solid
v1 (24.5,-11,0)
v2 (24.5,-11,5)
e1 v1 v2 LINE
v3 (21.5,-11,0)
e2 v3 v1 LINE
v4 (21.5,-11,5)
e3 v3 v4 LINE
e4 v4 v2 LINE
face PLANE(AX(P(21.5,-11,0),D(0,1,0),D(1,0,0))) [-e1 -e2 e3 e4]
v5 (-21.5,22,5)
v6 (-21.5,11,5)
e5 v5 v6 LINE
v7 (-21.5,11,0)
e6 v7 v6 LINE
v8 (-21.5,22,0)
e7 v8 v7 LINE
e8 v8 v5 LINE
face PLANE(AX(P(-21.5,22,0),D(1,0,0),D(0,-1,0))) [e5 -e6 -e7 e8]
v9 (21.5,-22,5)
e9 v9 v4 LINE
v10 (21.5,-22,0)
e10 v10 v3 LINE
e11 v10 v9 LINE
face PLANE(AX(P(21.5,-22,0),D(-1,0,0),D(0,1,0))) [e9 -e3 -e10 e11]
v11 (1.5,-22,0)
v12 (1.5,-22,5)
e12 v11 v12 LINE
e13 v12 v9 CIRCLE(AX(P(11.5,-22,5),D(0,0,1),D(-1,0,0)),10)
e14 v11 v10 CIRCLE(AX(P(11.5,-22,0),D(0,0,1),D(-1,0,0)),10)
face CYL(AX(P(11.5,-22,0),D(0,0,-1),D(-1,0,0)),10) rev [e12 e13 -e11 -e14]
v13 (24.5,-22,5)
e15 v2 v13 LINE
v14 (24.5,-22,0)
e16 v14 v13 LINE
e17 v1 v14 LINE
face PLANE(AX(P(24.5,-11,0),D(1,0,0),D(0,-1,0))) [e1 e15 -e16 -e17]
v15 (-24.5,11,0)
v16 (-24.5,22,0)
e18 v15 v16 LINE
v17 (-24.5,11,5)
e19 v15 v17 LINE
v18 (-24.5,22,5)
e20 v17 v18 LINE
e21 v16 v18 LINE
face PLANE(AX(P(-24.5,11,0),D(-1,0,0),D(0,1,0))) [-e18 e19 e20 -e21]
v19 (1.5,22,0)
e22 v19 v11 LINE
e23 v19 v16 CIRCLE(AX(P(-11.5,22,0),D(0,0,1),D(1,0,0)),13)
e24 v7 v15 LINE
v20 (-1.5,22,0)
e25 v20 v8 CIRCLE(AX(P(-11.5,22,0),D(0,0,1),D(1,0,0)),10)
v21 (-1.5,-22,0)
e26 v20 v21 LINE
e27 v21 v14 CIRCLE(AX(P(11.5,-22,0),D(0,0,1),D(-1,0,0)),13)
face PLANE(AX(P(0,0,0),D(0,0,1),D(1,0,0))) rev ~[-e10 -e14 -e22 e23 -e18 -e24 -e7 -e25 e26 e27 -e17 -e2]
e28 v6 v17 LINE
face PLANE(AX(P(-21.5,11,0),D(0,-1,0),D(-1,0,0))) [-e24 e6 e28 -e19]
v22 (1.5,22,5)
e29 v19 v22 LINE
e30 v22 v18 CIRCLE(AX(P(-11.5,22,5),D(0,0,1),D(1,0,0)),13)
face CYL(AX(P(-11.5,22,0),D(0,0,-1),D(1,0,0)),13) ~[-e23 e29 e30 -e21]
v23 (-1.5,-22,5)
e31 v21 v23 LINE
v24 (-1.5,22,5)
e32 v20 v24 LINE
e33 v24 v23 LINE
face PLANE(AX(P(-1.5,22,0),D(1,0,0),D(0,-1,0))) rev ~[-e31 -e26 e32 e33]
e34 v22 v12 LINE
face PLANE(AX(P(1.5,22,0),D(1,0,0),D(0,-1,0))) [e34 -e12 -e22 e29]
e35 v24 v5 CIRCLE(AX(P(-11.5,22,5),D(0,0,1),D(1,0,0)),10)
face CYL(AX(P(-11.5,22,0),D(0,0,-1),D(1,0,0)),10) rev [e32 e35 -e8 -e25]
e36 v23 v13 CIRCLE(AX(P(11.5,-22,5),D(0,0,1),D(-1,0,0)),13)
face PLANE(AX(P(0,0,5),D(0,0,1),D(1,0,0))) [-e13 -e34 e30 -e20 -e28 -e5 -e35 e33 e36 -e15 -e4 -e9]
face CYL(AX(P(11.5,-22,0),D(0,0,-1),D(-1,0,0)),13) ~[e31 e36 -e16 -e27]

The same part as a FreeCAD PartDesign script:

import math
import FreeCAD as App
import Part
import Sketcher
Q = App.Units.Quantity

doc = App.newDocument("Part")
params = doc.addObject("Spreadsheet::Sheet", "Params")
for row, (alias, value) in enumerate([
    ("sketch1_radius", "13 mm"),
    ("sketch1_radius2", "10 mm"),
    ("sketch1_height", "44 mm"),
    ("sketch1_height2", "11 mm"),
    ("pad1_length", "5 mm"),
], start=1):
    params.set(f"A{row}", alias)
    params.set(f"B{row}", "=" + value)
    params.setAlias(f"B{row}", alias)

body = doc.addObject("PartDesign::Body", "Body")

sketch1 = body.newObject("Sketcher::SketchObject", "Sketch")
sketch1.AttachmentSupport = (doc.getObject("XY_Plane"), [""])
sketch1.MapMode = "FlatFace"
sketch1.addGeometry(Part.LineSegment(App.Vector(-1.5, 22, 0), App.Vector(-1.5, -22, 0)), False)
sketch1.addGeometry(Part.ArcOfCircle(Part.Circle(App.Vector(11.5, -22, 0), App.Vector(0, 0, 1), 13), math.radians(180), math.radians(360)), False)
sketch1.addGeometry(Part.LineSegment(App.Vector(24.5, -22, 0), App.Vector(24.5, -11, 0)), False)
sketch1.addGeometry(Part.LineSegment(App.Vector(24.5, -11, 0), App.Vector(21.5, -11, 0)), False)
sketch1.addGeometry(Part.LineSegment(App.Vector(21.5, -11, 0), App.Vector(21.5, -22, 0)), False)
sketch1.addGeometry(Part.ArcOfCircle(Part.Circle(App.Vector(11.5, -22, 0), App.Vector(0, 0, 1), 10), math.radians(180), math.radians(360)), False)
sketch1.addGeometry(Part.LineSegment(App.Vector(1.5, -22, 0), App.Vector(1.5, 22, 0)), False)
sketch1.addGeometry(Part.ArcOfCircle(Part.Circle(App.Vector(-11.5, 22, 0), App.Vector(0, 0, 1), 13), math.radians(0), math.radians(180)), False)
sketch1.addGeometry(Part.LineSegment(App.Vector(-24.5, 22, 0), App.Vector(-24.5, 11, 0)), False)
sketch1.addGeometry(Part.LineSegment(App.Vector(-24.5, 11, 0), App.Vector(-21.5, 11, 0)), False)
sketch1.addGeometry(Part.LineSegment(App.Vector(-21.5, 11, 0), App.Vector(-21.5, 22, 0)), False)
sketch1.addGeometry(Part.ArcOfCircle(Part.Circle(App.Vector(-11.5, 22, 0), App.Vector(0, 0, 1), 10), math.radians(0), math.radians(180)), False)
sketch1.addConstraint(Sketcher.Constraint("Tangent", 0, 2, 1, 1))
sketch1.addConstraint(Sketcher.Constraint("Tangent", 1, 2, 2, 1))
sketch1.addConstraint(Sketcher.Constraint("Coincident", 2, 2, 3, 1))
sketch1.addConstraint(Sketcher.Constraint("Coincident", 3, 2, 4, 1))
sketch1.addConstraint(Sketcher.Constraint("Tangent", 4, 2, 5, 2))
sketch1.addConstraint(Sketcher.Constraint("Tangent", 5, 1, 6, 1))
sketch1.addConstraint(Sketcher.Constraint("Tangent", 6, 2, 7, 1))
sketch1.addConstraint(Sketcher.Constraint("Tangent", 7, 2, 8, 1))
sketch1.addConstraint(Sketcher.Constraint("Coincident", 8, 2, 9, 1))
sketch1.addConstraint(Sketcher.Constraint("Coincident", 9, 2, 10, 1))
sketch1.addConstraint(Sketcher.Constraint("Tangent", 10, 2, 11, 2))
sketch1.addConstraint(Sketcher.Constraint("Tangent", 11, 1, 0, 1))
sketch1.addConstraint(Sketcher.Constraint("Vertical", 0))
sketch1.addConstraint(Sketcher.Constraint("Vertical", 2))
sketch1.addConstraint(Sketcher.Constraint("Horizontal", 3))
sketch1.addConstraint(Sketcher.Constraint("Vertical", 4))
sketch1.addConstraint(Sketcher.Constraint("Vertical", 6))
sketch1.addConstraint(Sketcher.Constraint("Vertical", 8))
sketch1.addConstraint(Sketcher.Constraint("Horizontal", 9))
sketch1.addConstraint(Sketcher.Constraint("Vertical", 10))
sketch1.addConstraint(Sketcher.Constraint("Coincident", 5, 3, 1, 3))
sketch1.addConstraint(Sketcher.Constraint("Coincident", 11, 3, 7, 3))
sketch1.addConstraint(Sketcher.Constraint("Equal", 1, 7))
sketch1.addConstraint(Sketcher.Constraint("Symmetric", 1, 3, 7, 3, -1, 1))
sketch1.addConstraint(Sketcher.Constraint("Equal", 4, 8))
sketch1.addConstraint(Sketcher.Constraint("Radius", 1, Q("13 mm")))
sketch1.addConstraint(Sketcher.Constraint("Radius", 5, Q("10 mm")))
sketch1.addConstraint(Sketcher.Constraint("DistanceY", 0, 2, 0, 1, Q("44 mm")))
sketch1.addConstraint(Sketcher.Constraint("DistanceY", 2, 1, 2, 2, Q("11 mm")))
sketch1.setExpression("Constraints[25]", "Params.sketch1_radius")
sketch1.setExpression("Constraints[26]", "Params.sketch1_radius2")
sketch1.setExpression("Constraints[27]", "Params.sketch1_height")
sketch1.setExpression("Constraints[28]", "Params.sketch1_height2")
pad1 = body.newObject("PartDesign::Pad", "Pad")
pad1.Profile = sketch1
pad1.setExpression("Length", "Params.pad1_length")

doc.recompute()
